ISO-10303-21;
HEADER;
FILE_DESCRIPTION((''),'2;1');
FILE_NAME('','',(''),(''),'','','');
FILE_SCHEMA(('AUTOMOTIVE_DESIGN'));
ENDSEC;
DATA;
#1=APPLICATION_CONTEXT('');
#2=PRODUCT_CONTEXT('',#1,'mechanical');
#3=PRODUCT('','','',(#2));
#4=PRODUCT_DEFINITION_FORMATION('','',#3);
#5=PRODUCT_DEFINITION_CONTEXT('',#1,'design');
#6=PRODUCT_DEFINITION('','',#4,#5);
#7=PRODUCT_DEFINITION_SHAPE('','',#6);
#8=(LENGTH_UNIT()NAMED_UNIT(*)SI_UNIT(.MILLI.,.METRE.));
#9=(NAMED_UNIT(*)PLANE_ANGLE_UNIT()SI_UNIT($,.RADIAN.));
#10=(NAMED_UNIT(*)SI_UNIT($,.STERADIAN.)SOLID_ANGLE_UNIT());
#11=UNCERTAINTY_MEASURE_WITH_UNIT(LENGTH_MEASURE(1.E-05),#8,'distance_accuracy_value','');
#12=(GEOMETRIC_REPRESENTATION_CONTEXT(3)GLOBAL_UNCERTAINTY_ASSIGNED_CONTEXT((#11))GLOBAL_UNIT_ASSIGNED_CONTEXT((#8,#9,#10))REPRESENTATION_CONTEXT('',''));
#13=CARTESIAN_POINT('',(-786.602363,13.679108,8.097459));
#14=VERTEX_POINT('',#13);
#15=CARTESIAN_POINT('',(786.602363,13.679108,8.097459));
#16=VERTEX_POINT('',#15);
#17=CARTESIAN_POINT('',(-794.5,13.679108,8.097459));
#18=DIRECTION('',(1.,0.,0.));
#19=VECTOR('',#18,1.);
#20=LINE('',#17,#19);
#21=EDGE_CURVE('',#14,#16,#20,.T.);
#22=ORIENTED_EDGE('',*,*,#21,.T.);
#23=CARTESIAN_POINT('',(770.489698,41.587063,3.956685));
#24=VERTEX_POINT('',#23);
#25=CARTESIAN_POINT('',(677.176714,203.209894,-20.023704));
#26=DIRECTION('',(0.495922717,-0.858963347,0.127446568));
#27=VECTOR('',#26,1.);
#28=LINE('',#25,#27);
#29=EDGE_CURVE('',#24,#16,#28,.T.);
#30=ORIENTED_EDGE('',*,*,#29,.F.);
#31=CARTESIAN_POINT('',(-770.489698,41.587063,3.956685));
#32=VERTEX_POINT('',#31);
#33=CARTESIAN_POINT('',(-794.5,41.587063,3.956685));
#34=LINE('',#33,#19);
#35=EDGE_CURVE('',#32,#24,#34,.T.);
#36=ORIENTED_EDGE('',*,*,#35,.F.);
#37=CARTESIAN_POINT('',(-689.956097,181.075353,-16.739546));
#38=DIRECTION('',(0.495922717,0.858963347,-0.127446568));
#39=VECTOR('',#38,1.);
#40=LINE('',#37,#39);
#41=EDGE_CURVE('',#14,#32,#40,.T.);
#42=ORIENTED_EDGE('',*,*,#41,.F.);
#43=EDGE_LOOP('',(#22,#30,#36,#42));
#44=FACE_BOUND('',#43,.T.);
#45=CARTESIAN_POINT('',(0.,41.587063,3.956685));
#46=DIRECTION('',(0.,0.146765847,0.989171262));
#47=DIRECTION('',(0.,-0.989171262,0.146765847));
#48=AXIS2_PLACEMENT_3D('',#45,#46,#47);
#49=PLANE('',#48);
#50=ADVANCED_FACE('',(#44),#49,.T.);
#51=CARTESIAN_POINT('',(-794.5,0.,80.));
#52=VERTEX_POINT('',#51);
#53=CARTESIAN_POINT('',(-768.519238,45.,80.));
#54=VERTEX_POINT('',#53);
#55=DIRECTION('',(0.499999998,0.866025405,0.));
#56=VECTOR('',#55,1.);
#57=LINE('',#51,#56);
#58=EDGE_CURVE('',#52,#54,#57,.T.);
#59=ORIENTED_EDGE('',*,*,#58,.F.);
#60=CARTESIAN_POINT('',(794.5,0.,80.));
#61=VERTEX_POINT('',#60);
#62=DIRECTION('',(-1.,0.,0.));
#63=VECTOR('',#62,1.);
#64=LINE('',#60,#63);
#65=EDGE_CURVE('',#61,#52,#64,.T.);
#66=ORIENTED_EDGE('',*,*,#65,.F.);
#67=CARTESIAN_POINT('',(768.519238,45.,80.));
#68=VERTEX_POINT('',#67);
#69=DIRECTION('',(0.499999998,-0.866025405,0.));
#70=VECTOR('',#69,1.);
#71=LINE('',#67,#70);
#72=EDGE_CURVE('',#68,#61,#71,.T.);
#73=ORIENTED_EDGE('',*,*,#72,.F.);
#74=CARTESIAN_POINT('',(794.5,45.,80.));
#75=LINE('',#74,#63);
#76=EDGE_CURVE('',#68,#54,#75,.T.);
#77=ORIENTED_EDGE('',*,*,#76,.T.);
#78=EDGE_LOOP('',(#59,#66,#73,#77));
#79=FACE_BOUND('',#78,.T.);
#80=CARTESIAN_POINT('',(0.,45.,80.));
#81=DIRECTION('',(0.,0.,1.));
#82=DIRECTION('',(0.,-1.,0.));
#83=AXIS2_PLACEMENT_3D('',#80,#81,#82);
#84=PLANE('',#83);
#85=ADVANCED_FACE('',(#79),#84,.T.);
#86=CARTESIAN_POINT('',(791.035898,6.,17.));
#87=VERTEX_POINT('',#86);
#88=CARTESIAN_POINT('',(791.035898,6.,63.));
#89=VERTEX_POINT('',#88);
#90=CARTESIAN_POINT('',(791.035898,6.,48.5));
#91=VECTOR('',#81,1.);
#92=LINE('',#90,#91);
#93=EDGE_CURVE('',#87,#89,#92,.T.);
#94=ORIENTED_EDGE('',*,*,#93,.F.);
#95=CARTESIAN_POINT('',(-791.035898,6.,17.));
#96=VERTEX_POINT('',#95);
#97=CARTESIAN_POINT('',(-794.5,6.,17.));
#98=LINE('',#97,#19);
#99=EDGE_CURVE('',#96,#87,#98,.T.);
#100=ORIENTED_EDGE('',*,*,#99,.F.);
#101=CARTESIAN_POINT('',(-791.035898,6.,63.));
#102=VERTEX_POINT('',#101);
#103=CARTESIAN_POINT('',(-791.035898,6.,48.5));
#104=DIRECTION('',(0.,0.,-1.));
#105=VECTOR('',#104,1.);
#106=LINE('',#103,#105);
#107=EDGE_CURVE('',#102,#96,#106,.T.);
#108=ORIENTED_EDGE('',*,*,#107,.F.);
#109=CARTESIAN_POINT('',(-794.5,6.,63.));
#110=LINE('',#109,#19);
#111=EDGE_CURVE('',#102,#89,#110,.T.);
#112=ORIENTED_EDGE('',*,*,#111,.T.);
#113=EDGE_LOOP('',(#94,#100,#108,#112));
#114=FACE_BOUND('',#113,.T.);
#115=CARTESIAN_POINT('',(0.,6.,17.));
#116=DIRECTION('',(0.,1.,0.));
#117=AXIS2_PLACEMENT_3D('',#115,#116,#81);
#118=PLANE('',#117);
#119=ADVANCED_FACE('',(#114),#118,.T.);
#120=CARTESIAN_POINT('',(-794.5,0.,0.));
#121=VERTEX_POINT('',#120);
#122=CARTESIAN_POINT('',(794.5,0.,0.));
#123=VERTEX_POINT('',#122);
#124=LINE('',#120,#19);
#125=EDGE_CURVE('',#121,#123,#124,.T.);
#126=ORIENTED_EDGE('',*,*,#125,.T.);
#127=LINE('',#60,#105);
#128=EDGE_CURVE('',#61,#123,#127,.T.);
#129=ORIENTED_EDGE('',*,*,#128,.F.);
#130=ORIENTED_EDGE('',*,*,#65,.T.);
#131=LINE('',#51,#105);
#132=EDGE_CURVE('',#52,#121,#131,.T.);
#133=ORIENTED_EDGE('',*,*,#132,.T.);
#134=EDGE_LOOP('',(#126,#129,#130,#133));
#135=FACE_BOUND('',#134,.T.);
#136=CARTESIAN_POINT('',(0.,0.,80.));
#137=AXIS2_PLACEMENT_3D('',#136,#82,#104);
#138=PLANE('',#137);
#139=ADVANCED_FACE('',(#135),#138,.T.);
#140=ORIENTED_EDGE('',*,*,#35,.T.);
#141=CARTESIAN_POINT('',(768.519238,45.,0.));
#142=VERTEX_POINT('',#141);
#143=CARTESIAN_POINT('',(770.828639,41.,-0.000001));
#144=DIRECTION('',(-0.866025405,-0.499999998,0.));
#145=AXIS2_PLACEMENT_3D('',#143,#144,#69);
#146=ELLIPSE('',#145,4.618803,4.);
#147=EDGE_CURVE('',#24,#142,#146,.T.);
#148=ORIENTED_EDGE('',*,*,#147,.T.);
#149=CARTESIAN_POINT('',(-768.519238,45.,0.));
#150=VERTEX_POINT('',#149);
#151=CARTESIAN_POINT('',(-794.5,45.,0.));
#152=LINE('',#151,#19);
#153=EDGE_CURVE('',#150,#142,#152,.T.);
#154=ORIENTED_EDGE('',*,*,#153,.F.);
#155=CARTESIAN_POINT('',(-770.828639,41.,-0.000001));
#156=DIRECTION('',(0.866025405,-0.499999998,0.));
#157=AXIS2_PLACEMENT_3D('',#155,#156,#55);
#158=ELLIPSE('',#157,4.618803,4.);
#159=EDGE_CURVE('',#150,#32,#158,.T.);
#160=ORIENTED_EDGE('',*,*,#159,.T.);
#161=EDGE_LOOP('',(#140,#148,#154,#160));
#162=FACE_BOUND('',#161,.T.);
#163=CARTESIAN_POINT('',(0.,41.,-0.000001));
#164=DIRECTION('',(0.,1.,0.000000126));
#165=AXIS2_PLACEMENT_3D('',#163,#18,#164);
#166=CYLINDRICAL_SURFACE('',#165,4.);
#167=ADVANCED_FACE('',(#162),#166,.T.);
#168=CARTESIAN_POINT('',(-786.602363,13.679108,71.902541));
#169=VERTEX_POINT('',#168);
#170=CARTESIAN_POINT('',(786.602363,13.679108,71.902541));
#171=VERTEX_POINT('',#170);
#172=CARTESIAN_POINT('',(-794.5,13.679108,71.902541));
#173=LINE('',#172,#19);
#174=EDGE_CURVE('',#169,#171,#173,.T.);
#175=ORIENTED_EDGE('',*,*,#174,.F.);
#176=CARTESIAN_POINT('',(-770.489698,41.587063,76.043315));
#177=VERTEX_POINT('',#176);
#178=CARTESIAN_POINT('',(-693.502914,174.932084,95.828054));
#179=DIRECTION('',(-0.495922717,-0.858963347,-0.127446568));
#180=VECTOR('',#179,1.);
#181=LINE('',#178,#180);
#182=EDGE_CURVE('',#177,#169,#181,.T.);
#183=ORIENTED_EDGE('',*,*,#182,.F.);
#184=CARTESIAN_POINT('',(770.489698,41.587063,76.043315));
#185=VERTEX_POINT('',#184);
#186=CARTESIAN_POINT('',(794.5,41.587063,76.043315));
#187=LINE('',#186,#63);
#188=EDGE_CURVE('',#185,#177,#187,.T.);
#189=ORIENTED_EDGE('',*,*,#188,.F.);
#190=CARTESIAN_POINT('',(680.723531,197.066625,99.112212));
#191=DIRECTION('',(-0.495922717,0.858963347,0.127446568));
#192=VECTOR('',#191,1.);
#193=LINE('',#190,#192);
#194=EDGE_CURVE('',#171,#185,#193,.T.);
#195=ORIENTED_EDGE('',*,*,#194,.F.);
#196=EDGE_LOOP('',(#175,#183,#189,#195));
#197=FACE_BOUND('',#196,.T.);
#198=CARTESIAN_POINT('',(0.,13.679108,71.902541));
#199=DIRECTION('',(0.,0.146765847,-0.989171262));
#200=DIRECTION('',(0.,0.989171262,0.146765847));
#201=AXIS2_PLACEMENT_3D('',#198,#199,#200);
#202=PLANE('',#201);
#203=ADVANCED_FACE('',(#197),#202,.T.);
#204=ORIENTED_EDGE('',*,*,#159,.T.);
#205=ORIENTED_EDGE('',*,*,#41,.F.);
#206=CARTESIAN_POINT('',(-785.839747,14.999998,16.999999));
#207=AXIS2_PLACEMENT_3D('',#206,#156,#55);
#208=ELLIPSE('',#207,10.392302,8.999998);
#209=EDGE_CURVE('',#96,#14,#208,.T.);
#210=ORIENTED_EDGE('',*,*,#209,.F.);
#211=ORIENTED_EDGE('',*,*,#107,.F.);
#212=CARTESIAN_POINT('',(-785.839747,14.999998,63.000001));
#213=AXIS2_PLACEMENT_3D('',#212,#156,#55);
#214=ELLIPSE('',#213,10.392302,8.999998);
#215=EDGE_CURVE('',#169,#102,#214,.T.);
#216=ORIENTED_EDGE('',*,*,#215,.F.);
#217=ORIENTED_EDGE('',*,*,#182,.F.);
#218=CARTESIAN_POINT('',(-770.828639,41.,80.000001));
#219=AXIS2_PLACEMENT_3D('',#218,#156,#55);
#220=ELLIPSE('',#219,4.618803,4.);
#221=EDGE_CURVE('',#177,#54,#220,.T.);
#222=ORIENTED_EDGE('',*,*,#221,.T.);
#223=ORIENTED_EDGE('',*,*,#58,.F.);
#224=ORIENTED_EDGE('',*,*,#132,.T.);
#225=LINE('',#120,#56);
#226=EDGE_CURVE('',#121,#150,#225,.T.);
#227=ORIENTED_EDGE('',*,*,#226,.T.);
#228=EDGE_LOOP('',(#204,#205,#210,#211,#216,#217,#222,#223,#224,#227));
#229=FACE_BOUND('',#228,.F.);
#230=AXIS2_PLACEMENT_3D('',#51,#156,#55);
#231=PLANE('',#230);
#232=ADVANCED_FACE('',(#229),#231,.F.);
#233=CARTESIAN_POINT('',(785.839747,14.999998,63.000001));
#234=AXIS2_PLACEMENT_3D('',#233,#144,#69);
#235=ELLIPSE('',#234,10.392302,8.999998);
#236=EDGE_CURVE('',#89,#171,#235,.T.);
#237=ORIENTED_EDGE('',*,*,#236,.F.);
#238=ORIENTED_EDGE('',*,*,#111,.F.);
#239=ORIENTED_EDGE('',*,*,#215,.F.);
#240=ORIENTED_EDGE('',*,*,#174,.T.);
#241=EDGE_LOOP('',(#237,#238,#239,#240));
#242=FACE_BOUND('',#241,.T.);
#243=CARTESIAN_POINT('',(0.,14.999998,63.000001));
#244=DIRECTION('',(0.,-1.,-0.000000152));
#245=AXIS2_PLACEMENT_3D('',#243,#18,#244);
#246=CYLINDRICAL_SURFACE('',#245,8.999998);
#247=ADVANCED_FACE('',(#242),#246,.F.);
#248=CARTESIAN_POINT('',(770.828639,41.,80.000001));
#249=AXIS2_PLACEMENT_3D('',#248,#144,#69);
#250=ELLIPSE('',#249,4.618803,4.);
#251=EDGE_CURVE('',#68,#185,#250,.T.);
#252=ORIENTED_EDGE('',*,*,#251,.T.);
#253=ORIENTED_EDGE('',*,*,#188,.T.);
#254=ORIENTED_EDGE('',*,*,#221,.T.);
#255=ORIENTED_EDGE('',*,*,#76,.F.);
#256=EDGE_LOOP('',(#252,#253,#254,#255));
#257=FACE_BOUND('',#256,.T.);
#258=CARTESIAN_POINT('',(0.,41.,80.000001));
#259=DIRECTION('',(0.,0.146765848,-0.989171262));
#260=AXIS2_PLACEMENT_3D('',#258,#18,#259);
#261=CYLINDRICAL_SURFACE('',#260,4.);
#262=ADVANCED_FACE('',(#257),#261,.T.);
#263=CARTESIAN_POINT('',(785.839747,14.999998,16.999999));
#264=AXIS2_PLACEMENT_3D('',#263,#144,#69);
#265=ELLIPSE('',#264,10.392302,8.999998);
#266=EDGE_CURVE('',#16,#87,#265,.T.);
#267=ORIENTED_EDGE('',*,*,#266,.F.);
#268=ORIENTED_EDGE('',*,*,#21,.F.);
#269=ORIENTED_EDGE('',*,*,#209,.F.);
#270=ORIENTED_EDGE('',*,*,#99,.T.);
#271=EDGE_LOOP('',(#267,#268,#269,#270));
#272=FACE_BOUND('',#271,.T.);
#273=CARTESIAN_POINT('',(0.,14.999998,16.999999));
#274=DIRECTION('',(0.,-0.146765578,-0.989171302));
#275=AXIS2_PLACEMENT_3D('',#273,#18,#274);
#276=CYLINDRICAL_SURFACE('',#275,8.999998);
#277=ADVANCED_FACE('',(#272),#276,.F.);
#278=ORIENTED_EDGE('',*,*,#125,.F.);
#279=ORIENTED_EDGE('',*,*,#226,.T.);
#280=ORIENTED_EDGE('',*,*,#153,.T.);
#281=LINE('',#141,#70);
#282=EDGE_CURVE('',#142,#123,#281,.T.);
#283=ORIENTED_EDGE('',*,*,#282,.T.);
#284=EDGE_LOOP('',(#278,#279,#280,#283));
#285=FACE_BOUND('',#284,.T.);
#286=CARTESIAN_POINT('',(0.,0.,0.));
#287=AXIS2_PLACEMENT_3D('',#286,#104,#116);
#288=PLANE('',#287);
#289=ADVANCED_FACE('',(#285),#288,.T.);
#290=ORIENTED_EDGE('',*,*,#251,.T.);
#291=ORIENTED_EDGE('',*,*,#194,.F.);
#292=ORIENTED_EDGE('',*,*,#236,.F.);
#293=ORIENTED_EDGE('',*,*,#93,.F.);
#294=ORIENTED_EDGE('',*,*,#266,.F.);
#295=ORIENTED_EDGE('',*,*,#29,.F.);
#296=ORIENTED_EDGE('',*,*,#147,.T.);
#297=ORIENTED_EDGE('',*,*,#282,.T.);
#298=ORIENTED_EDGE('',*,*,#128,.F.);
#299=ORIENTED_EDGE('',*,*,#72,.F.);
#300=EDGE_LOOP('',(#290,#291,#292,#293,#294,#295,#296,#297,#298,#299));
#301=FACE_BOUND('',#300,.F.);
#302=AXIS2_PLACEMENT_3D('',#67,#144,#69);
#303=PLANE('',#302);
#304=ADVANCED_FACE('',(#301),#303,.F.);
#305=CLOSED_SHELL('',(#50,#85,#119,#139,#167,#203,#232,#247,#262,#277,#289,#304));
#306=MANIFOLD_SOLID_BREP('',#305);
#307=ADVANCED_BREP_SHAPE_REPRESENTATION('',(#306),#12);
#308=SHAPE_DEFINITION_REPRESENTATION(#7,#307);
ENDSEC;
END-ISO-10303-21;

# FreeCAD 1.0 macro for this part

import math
import FreeCAD as App
import Part
import Sketcher

V = App.Vector
Q = App.Units.Quantity

doc = App.newDocument("Part")
params = doc.addObject("Spreadsheet::Sheet", "Params")
for row, (alias, value) in enumerate([
    ("sketch1_radius", "4 mm"),
    ("sketch1_width", "45 mm"),
    ("sketch1_height", "80 mm"),
    ("sketch1_height2", "46 mm"),
    ("pad1_length", "1589 mm"),
    ("sketch2_height", "45 mm"),
], start=1):
    params.set(f"A{row}", alias)
    params.set(f"B{row}", "=" + value)
    params.setAlias(f"B{row}", alias)

body = doc.addObject("PartDesign::Body", "Body")

sketch1 = body.newObject("Sketcher::SketchObject", "Sketch")
sketch1.AttachmentSupport = (doc.getObject("YZ_Plane"), [""])
sketch1.MapMode = "FlatFace"
sketch1.addGeometry(Part.LineSegment(V(0, 80, 0), V(0, 0, 0)), False)
sketch1.addGeometry(Part.LineSegment(V(0, 0, 0), V(45, 0, 0)), False)
sketch1.addGeometry(Part.ArcOfCircle(Part.Circle(V(41, 0, 0), V(0, 0, 1), 4), math.radians(0), math.radians(82)), False)
sketch1.addGeometry(Part.LineSegment(V(41.6, 4, 0), V(13.7, 8.1, 0)), False)
sketch1.addGeometry(Part.ArcOfCircle(Part.Circle(V(15, 17, 0), V(0, 0, 1), 9), math.radians(180), math.radians(262)), False)
sketch1.addGeometry(Part.LineSegment(V(6, 17, 0), V(6, 63, 0)), False)
sketch1.addGeometry(Part.ArcOfCircle(Part.Circle(V(15, 63, 0), V(0, 0, 1), 9), math.radians(98), math.radians(180)), False)
sketch1.addGeometry(Part.LineSegment(V(13.7, 71.9, 0), V(41.6, 76, 0)), False)
sketch1.addGeometry(Part.ArcOfCircle(Part.Circle(V(41, 80, 0), V(0, 0, 1), 4), math.radians(-82), math.radians(0)), False)
sketch1.addGeometry(Part.LineSegment(V(45, 80, 0), V(0, 80, 0)), False)
sketch1.addConstraint(Sketcher.Constraint("Coincident", 0, 2, 1, 1))
sketch1.addConstraint(Sketcher.Constraint("Coincident", 1, 2, 2, 1))
sketch1.addConstraint(Sketcher.Constraint("Tangent", 2, 2, 3, 1))
sketch1.addConstraint(Sketcher.Constraint("Tangent", 3, 2, 4, 2))
sketch1.addConstraint(Sketcher.Constraint("Tangent", 4, 1, 5, 1))
sketch1.addConstraint(Sketcher.Constraint("Tangent", 5, 2, 6, 2))
sketch1.addConstraint(Sketcher.Constraint("Tangent", 6, 1, 7, 1))
sketch1.addConstraint(Sketcher.Constraint("Tangent", 7, 2, 8, 1))
sketch1.addConstraint(Sketcher.Constraint("Coincident", 8, 2, 9, 1))
sketch1.addConstraint(Sketcher.Constraint("Coincident", 9, 2, 0, 1))
sketch1.addConstraint(Sketcher.Constraint("Vertical", 0))
sketch1.addConstraint(Sketcher.Constraint("Horizontal", 1))
sketch1.addConstraint(Sketcher.Constraint("Vertical", 5))
sketch1.addConstraint(Sketcher.Constraint("Horizontal", 9))
sketch1.addConstraint(Sketcher.Constraint("Coincident", 0, 2, -1, 1))
sketch1.addConstraint(Sketcher.Constraint("Equal", 4, 6))
sketch1.addConstraint(Sketcher.Constraint("Equal", 2, 8))
sketch1.addConstraint(Sketcher.Constraint("PointOnObject", 2, 3, -1))
sketch1.addConstraint(Sketcher.Constraint("Vertical", 2, 3, 8, 3))
sketch1.addConstraint(Sketcher.Constraint("Vertical", 3, 2, 6, 1))
sketch1.addConstraint(Sketcher.Constraint("Radius", 2, Q("4 mm")))
sketch1.addConstraint(Sketcher.Constraint("DistanceX", 1, 1, 1, 2, Q("45 mm")))
sketch1.addConstraint(Sketcher.Constraint("DistanceY", 0, 2, 0, 1, Q("80 mm")))
sketch1.addConstraint(Sketcher.Constraint("DistanceY", 5, 1, 5, 2, Q("46 mm")))
sketch1.addConstraint(Sketcher.Constraint("DistanceY", -1, 1, 4, 3, Q("16.999999 mm")))
sketch1.addConstraint(Sketcher.Constraint("DistanceX", -1, 1, 4, 1, Q("6 mm")))
sketch1.addConstraint(Sketcher.Constraint("DistanceX", 4, 3, 2, 3, Q("26.000002 mm")))
sketch1.setExpression("Constraints[20]", "Params.sketch1_radius")
sketch1.setExpression("Constraints[21]", "Params.sketch1_width")
sketch1.setExpression("Constraints[22]", "Params.sketch1_height")
sketch1.setExpression("Constraints[23]", "Params.sketch1_height2")
pad1 = body.newObject("PartDesign::Pad", "Pad")
pad1.Profile = sketch1
pad1.setExpression("Length", "Params.pad1_length")
pad1.Midplane = True

sketch2 = body.newObject("Sketcher::SketchObject", "Sketch001")
sketch2.AttachmentSupport = (doc.getObject("XY_Plane"), [""])
sketch2.MapMode = "FlatFace"
sketch2.AttachmentOffset = App.Placement(V(0, 0, 80), App.Rotation())
sketch2.addGeometry(Part.LineSegment(V(-769, 45, 0), V(-794, 45, 0)), False)
sketch2.addGeometry(Part.LineSegment(V(-794, 45, 0), V(-794, 0, 0)), False)
sketch2.addGeometry(Part.LineSegment(V(-794, 0, 0), V(-769, 45, 0)), False)
sketch2.addGeometry(Part.LineSegment(V(794, 45, 0), V(769, 45, 0)), False)
sketch2.addGeometry(Part.LineSegment(V(769, 45, 0), V(794, 0, 0)), False)
sketch2.addGeometry(Part.LineSegment(V(794, 0, 0), V(794, 45, 0)), False)
sketch2.addConstraint(Sketcher.Constraint("Coincident", 0, 2, 1, 1))
sketch2.addConstraint(Sketcher.Constraint("Coincident", 1, 2, 2, 1))
sketch2.addConstraint(Sketcher.Constraint("Coincident", 2, 2, 0, 1))
sketch2.addConstraint(Sketcher.Constraint("Coincident", 3, 2, 4, 1))
sketch2.addConstraint(Sketcher.Constraint("Coincident", 4, 2, 5, 1))
sketch2.addConstraint(Sketcher.Constraint("Coincident", 5, 2, 3, 1))
sketch2.addConstraint(Sketcher.Constraint("Horizontal", 0))
sketch2.addConstraint(Sketcher.Constraint("Vertical", 1))
sketch2.addConstraint(Sketcher.Constraint("Horizontal", 3))
sketch2.addConstraint(Sketcher.Constraint("Vertical", 5))
sketch2.addConstraint(Sketcher.Constraint("Symmetric", 1, 2, 4, 2, -1, 1))
sketch2.addConstraint(Sketcher.Constraint("Symmetric", 2, 2, 3, 2, -2))
sketch2.addConstraint(Sketcher.Constraint("PointOnObject", 1, 2, -1))
sketch2.addConstraint(Sketcher.Constraint("DistanceY", 1, 2, 1, 1, Q("45 mm")))
sketch2.addConstraint(Sketcher.Constraint("Angle", 2, Q("60 deg")))
sketch2.addConstraint(Sketcher.Constraint("DistanceX", 1, 2, 4, 2, Q("1589 mm")))
sketch2.setExpression("Constraints[13]", "Params.sketch2_height")
pocket1 = body.newObject("PartDesign::Pocket", "Pocket")
pocket1.Profile = sketch2
pocket1.Type = "ThroughAll"

doc.recompute()
